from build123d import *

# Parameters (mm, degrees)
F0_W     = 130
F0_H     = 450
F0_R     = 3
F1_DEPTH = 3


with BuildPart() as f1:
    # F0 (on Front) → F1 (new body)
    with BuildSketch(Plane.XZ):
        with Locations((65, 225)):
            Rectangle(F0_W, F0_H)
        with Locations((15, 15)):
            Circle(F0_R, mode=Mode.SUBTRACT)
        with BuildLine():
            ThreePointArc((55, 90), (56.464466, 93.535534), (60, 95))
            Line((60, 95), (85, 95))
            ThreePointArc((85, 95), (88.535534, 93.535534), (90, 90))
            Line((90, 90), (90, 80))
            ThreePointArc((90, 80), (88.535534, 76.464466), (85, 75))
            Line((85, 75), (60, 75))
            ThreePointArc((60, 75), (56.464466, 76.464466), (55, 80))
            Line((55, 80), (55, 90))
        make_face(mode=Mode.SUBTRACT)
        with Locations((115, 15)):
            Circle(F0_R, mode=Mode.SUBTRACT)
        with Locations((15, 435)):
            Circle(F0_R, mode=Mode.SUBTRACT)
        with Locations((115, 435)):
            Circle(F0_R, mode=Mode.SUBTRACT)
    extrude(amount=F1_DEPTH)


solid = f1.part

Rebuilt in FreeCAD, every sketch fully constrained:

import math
import FreeCAD as App
import Part
import Sketcher
Q = App.Units.Quantity


def add_polygon(sketch, points):
    """Adds a closed chain of lines whose ends are joined by coincident constraints."""
    first, n = sketch.GeometryCount, len(points)
    for a, b in zip(points, points[1:] + points[:1]):
        sketch.addGeometry(Part.LineSegment(App.Vector(*a, 0), App.Vector(*b, 0)), False)
    for i in range(n):
        sketch.addConstraint(Sketcher.Constraint("Coincident", first + i, 2, first + (i + 1) % n, 1))

doc = App.newDocument("Part")
body = doc.addObject("PartDesign::Body", "Body")

# Sketch on XZ plane
sketch1 = doc.addObject("Sketcher::SketchObject", "Sketch")
body.addObject(sketch1)
sketch1.AttachmentSupport = (doc.XZ_Plane, [""])
sketch1.MapMode = "FlatFace"
add_polygon(sketch1, [(0, 450), (0, 0), (130, 0), (130, 450)])  # lines 0-3
sketch1.addGeometry(Part.Circle(App.Vector(15, 15, 0), App.Vector(0, 0, 1), 3), False)  # 4
sketch1.addGeometry(Part.LineSegment(App.Vector(55, 80, 0), App.Vector(55, 90, 0)), False)  # 5
sketch1.addGeometry(Part.ArcOfCircle(Part.Circle(App.Vector(60, 90, 0), App.Vector(0, 0, 1), 5), math.radians(89.999996), math.radians(180.000004)), False)  # 6
sketch1.addGeometry(Part.LineSegment(App.Vector(60, 95, 0), App.Vector(85, 95, 0)), False)  # 7
sketch1.addGeometry(Part.ArcOfCircle(Part.Circle(App.Vector(85, 90, 0), App.Vector(0, 0, 1), 5), math.radians(-0.000004), math.radians(90.000004)), False)  # 8
sketch1.addGeometry(Part.LineSegment(App.Vector(90, 90, 0), App.Vector(90, 80, 0)), False)  # 9
sketch1.addGeometry(Part.ArcOfCircle(Part.Circle(App.Vector(85, 80, 0), App.Vector(0, 0, 1), 5), math.radians(-90.000004), math.radians(0.000004)), False)  # 10
sketch1.addGeometry(Part.LineSegment(App.Vector(85, 75, 0), App.Vector(60, 75, 0)), False)  # 11
sketch1.addGeometry(Part.ArcOfCircle(Part.Circle(App.Vector(60, 80, 0), App.Vector(0, 0, 1), 5), math.radians(179.999996), math.radians(270.000004)), False)  # 12
sketch1.addGeometry(Part.Circle(App.Vector(115, 15, 0), App.Vector(0, 0, 1), 3), False)  # 13
sketch1.addGeometry(Part.Circle(App.Vector(15, 435, 0), App.Vector(0, 0, 1), 3), False)  # 14
sketch1.addGeometry(Part.Circle(App.Vector(115, 435, 0), App.Vector(0, 0, 1), 3), False)  # 15
sketch1.addConstraint([
    Sketcher.Constraint("Tangent", 5, 2, 6, 2),
    Sketcher.Constraint("Tangent", 6, 1, 7, 1),
    Sketcher.Constraint("Tangent", 7, 2, 8, 2),
    Sketcher.Constraint("Tangent", 8, 1, 9, 1),
    Sketcher.Constraint("Tangent", 9, 2, 10, 2),
    Sketcher.Constraint("Tangent", 10, 1, 11, 1),
    Sketcher.Constraint("Tangent", 11, 2, 12, 2),
    Sketcher.Constraint("Tangent", 12, 1, 5, 1),
    Sketcher.Constraint("Vertical", 0),
    Sketcher.Constraint("Horizontal", 1),
    Sketcher.Constraint("Vertical", 2),
    Sketcher.Constraint("Horizontal", 3),
    Sketcher.Constraint("Vertical", 5),
    Sketcher.Constraint("Horizontal", 7),
    Sketcher.Constraint("Vertical", 9),
    Sketcher.Constraint("Horizontal", 11),
    Sketcher.Constraint("Coincident", 0, 2, -1, 1),
    Sketcher.Constraint("Equal", 6, 8),
    Sketcher.Constraint("Equal", 8, 10),
    Sketcher.Constraint("Equal", 10, 12),
    Sketcher.Constraint("Equal", 4, 13),
    Sketcher.Constraint("Equal", 13, 14),
    Sketcher.Constraint("Equal", 14, 15),
    Sketcher.Constraint("Horizontal", 4, 3, 13, 3),
    Sketcher.Constraint("Horizontal", 14, 3, 15, 3),
    Sketcher.Constraint("Vertical", 4, 3, 14, 3),
    Sketcher.Constraint("Vertical", 13, 3, 15, 3),
    Sketcher.Constraint("Diameter", 4, Q("6 mm")),
    Sketcher.Constraint("Radius", 6, Q("5 mm")),
    Sketcher.Constraint("DistanceX", 1, 1, 1, 2, Q("130 mm")),
    Sketcher.Constraint("DistanceX", 7, 1, 7, 2, Q("25 mm")),
    Sketcher.Constraint("DistanceY", 0, 2, 0, 1, Q("450 mm")),
    Sketcher.Constraint("DistanceY", 5, 1, 5, 2, Q("10 mm")),
    Sketcher.Constraint("DistanceX", -1, 1, 4, 3, Q("15 mm")),
    Sketcher.Constraint("DistanceY", -1, 1, 4, 3, Q("15 mm")),
    Sketcher.Constraint("DistanceX", -1, 1, 6, 3, Q("60 mm")),
    Sketcher.Constraint("DistanceY", -1, 1, 6, 3, Q("90 mm")),
    Sketcher.Constraint("DistanceX", -1, 1, 13, 3, Q("115 mm")),
    Sketcher.Constraint("DistanceY", -1, 1, 14, 3, Q("435 mm")),
])
pad1 = doc.addObject("PartDesign::Pad", "Pad")
body.addObject(pad1)
pad1.Profile = sketch1
pad1.Length = 3

doc.recompute()
